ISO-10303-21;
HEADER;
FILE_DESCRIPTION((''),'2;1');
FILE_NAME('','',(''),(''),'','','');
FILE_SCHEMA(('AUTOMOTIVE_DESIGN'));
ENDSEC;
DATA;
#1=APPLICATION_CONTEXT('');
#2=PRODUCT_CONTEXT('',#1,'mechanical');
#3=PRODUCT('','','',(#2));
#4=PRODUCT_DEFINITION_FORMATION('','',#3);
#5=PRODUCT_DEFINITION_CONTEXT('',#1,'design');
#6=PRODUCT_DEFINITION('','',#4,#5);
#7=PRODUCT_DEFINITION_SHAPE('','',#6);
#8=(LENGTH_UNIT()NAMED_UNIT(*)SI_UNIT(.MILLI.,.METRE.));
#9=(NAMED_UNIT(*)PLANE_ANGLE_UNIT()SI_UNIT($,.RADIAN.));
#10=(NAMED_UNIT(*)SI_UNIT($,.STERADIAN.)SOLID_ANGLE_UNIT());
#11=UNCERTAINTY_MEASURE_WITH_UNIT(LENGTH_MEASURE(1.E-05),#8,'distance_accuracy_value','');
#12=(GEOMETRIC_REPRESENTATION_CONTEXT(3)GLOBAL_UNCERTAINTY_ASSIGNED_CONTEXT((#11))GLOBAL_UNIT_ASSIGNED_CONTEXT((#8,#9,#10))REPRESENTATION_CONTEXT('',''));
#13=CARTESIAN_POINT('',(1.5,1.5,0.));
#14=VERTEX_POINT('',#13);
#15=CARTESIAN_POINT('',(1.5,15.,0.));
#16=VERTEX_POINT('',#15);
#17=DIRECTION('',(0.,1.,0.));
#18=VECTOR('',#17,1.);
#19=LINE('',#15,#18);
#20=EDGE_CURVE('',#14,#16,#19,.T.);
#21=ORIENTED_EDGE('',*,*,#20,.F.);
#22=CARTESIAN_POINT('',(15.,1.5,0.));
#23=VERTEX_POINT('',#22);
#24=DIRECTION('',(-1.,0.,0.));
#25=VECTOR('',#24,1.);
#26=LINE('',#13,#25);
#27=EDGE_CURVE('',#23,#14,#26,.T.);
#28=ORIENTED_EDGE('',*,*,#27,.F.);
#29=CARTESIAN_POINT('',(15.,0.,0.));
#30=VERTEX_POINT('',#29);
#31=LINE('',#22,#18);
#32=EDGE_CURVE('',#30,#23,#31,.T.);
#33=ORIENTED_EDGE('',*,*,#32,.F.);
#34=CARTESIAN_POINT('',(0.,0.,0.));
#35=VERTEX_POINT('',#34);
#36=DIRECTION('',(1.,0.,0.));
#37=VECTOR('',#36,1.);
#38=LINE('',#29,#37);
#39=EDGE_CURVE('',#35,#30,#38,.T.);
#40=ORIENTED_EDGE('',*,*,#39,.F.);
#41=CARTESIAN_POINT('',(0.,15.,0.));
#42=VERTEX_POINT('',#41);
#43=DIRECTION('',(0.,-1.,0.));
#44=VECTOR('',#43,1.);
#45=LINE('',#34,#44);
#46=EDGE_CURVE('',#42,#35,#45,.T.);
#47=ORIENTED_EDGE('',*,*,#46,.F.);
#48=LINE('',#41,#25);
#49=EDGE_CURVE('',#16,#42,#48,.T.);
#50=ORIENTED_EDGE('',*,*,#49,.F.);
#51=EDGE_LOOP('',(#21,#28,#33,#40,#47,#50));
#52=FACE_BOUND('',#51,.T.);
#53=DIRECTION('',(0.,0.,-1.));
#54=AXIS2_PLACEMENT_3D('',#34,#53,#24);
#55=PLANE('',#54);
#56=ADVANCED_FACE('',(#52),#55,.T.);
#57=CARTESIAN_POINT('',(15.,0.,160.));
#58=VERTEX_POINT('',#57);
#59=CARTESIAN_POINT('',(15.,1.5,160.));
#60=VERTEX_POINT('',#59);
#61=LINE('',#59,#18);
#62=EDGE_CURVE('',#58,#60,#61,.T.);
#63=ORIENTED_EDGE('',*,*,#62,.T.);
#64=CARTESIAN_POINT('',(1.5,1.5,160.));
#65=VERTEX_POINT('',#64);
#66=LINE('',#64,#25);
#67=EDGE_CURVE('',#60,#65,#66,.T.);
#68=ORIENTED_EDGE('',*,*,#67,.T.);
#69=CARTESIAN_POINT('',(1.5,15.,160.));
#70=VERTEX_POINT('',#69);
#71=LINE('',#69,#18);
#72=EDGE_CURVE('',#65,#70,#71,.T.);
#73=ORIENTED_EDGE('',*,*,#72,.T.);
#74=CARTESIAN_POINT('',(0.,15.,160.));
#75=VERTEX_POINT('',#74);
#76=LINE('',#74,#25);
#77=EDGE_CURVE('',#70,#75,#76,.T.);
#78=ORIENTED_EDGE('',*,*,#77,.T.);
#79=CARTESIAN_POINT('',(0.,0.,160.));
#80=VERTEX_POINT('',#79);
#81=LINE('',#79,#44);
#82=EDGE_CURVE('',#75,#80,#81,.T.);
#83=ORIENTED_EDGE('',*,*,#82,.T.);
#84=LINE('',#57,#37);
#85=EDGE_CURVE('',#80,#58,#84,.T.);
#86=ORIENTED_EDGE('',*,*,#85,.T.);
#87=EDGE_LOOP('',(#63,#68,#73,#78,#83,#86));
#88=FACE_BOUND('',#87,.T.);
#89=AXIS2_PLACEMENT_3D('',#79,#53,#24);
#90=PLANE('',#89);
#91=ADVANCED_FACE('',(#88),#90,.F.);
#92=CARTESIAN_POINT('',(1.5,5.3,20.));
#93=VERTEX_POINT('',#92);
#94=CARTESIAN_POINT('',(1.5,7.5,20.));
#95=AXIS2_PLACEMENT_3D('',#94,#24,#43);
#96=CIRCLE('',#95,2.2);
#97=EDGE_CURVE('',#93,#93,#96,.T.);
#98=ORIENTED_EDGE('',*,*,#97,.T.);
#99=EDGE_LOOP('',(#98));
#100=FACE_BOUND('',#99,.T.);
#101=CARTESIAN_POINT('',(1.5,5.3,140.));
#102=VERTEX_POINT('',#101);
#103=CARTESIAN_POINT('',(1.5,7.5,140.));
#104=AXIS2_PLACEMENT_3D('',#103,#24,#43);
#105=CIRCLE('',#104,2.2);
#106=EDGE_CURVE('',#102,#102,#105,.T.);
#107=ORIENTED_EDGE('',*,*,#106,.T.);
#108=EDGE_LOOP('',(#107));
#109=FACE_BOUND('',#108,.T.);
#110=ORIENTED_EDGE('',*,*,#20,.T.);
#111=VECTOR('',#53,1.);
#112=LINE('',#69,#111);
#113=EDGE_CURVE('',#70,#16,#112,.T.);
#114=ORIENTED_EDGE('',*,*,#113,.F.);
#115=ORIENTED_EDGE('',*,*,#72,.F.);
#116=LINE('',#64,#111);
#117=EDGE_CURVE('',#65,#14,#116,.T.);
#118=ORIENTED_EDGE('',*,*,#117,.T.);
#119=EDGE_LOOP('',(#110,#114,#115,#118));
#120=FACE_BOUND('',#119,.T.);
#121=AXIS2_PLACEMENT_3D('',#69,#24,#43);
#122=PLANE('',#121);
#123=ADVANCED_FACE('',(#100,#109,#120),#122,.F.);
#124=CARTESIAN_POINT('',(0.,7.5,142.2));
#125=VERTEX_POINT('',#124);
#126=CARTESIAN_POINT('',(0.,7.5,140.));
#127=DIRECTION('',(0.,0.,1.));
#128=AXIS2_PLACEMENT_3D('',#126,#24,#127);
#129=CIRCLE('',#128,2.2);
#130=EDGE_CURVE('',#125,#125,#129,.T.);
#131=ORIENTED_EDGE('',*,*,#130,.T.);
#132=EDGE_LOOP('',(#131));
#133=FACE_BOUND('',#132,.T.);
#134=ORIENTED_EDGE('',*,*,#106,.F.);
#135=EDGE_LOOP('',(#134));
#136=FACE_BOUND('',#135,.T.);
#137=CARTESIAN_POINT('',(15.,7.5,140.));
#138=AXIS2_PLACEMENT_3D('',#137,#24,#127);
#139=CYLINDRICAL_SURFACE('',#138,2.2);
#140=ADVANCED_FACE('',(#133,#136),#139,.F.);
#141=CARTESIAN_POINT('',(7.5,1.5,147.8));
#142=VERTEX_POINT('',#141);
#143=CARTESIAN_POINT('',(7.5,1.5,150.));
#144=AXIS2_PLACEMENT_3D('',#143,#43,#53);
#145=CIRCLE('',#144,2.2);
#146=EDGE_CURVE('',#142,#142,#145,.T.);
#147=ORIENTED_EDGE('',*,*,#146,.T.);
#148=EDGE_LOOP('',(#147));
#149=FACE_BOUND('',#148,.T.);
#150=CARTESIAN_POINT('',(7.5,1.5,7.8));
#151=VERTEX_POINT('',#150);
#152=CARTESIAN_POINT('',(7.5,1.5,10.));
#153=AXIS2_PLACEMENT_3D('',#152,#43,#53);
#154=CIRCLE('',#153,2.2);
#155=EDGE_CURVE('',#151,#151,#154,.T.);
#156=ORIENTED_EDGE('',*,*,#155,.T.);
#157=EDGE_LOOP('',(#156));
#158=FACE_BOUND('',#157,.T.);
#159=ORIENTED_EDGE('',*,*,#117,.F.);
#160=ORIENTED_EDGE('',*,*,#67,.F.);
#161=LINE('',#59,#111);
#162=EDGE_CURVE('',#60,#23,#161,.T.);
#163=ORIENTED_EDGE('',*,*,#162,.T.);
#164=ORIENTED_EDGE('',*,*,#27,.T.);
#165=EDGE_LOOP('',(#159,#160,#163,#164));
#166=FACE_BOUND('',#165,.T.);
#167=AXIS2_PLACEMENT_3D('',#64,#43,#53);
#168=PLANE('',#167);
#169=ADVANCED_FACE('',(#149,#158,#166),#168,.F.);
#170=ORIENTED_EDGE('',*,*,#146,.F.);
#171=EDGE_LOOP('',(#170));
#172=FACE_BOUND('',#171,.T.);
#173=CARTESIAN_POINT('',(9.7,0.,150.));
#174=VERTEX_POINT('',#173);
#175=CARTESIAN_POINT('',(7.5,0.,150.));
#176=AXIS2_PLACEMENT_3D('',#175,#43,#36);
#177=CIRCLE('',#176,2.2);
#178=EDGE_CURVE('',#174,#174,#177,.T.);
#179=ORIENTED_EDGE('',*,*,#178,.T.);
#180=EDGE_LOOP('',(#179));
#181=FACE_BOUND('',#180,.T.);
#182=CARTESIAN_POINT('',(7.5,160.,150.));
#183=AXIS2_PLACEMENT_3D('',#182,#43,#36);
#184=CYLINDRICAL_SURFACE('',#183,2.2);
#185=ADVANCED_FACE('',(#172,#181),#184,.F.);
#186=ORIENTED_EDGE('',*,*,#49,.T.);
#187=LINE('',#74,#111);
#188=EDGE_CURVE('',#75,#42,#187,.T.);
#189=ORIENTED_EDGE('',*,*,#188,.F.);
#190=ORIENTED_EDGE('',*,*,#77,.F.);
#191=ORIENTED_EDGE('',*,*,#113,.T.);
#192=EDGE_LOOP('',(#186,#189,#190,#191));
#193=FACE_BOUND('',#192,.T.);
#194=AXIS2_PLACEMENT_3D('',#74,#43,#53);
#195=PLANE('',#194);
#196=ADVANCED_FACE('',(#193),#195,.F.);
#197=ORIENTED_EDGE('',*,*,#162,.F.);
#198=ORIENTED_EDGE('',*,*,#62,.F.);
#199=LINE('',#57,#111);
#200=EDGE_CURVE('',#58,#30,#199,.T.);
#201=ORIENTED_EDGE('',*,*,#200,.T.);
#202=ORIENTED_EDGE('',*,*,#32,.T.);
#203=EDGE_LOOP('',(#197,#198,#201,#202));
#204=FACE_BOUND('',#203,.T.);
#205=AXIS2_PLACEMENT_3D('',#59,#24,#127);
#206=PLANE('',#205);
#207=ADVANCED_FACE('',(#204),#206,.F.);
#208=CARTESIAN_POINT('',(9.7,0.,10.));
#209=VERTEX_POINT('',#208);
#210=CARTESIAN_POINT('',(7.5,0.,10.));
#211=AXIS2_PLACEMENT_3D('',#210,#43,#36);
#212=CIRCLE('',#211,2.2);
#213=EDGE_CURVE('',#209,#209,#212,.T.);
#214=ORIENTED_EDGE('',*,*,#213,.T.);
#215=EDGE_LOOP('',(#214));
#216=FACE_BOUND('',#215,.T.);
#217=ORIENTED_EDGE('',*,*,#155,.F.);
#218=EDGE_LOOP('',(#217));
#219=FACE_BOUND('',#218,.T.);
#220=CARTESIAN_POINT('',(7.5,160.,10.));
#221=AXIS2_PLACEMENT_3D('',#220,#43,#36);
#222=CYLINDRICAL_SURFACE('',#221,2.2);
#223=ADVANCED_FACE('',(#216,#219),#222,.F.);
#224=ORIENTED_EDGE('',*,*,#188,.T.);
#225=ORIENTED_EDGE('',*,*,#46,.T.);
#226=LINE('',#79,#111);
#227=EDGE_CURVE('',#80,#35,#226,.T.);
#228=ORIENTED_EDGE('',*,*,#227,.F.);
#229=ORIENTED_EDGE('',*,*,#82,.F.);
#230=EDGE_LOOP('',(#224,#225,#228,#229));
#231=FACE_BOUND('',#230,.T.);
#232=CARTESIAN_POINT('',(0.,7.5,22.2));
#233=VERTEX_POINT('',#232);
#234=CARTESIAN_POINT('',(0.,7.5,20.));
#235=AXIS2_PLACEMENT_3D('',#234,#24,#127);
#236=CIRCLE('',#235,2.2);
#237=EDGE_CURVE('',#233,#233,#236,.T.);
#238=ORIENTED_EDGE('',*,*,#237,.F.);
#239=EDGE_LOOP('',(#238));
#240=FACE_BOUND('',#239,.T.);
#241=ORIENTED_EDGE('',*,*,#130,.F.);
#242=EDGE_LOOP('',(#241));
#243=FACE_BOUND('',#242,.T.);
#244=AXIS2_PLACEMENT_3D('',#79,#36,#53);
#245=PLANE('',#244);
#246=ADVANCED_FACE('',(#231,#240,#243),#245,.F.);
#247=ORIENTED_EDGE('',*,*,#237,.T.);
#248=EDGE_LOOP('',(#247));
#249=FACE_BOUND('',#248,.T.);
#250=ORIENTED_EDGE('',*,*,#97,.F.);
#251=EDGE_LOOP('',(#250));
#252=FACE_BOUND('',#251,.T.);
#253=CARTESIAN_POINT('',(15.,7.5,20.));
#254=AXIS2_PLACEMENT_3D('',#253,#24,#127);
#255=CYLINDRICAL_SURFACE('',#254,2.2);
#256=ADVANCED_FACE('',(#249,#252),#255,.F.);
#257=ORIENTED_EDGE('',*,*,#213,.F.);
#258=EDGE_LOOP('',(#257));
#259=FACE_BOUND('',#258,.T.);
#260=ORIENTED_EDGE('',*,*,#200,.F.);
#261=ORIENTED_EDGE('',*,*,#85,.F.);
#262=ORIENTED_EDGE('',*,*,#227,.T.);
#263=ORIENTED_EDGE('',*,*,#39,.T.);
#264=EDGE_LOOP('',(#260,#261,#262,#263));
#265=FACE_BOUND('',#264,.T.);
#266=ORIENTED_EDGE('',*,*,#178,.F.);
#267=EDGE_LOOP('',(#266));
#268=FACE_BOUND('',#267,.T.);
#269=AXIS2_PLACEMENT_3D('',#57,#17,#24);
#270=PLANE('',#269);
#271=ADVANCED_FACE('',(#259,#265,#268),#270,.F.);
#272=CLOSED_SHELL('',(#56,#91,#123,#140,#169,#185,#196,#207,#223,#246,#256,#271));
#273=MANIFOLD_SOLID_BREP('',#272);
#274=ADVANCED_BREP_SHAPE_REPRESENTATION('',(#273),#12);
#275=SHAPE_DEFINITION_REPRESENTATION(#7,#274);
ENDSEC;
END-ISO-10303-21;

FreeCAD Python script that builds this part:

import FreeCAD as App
import Part
import Sketcher
from FreeCAD import Vector
Q = App.Units.Quantity


def add_polygon(sketch, points):
    """Adds a closed chain of lines whose ends are joined by coincident constraints."""
    first, n = sketch.GeometryCount, len(points)
    for a, b in zip(points, points[1:] + points[:1]):
        sketch.addGeometry(Part.LineSegment(App.Vector(*a, 0), App.Vector(*b, 0)), False)
    for i in range(n):
        sketch.addConstraint(Sketcher.Constraint("Coincident", first + i, 2, first + (i + 1) % n, 1))

doc = App.newDocument("Part")
body = doc.addObject("PartDesign::Body", "Body")

# Sketch on XY plane
sketch1 = body.newObject("Sketcher::SketchObject", "Sketch")
sketch1.AttachmentSupport = (doc.getObject("XY_Plane"), [""])
sketch1.MapMode = "FlatFace"
add_polygon(sketch1, [(0, 15), (0, 0), (15, 0), (15, 1.5), (1.5, 1.5), (1.5, 15)])  # lines 0-5
sketch1.addConstraint([
    Sketcher.Constraint("Vertical", 0),
    Sketcher.Constraint("Horizontal", 1),
    Sketcher.Constraint("Vertical", 2),
    Sketcher.Constraint("Horizontal", 3),
    Sketcher.Constraint("Vertical", 4),
    Sketcher.Constraint("Horizontal", 5),
    Sketcher.Constraint("Coincident", 0, 2, -1, 1),
    Sketcher.Constraint("Equal", 1, 0),
    Sketcher.Constraint("Equal", 5, 2),
    Sketcher.Constraint("DistanceX", 1, 1, 1, 2, Q("15 mm")),
    Sketcher.Constraint("DistanceX", 3, 2, 3, 1, Q("13.5 mm")),
])
pad1 = body.newObject("PartDesign::Pad", "Pad")
pad1.Profile = sketch1
pad1.Length = 160

# Sketch on YZ plane
sketch2 = body.newObject("Sketcher::SketchObject", "Sketch001")
sketch2.AttachmentSupport = (doc.getObject("YZ_Plane"), [""])
sketch2.MapMode = "FlatFace"
sketch2.addGeometry([
    Part.Circle(Vector(7.5, 20, 0), Vector(0, 0, 1), 2.2),
    Part.Circle(Vector(7.5, 140, 0), Vector(0, 0, 1), 2.2),
], False)
sketch2.addConstraint([
    Sketcher.Constraint("Equal", 0, 1),
    Sketcher.Constraint("Vertical", 0, 3, 1, 3),
    Sketcher.Constraint("Diameter", 0, Q("4.4 mm")),
    Sketcher.Constraint("DistanceY", -1, 1, 0, 3, Q("20 mm")),
    Sketcher.Constraint("DistanceY", -1, 1, 1, 3, Q("140 mm")),
    Sketcher.Constraint("DistanceX", -1, 1, 0, 3, Q("7.5 mm")),
])
pocket1 = body.newObject("PartDesign::Pocket", "Pocket")
pocket1.Profile = sketch2
pocket1.Type = "ThroughAll"
pocket1.Reversed = True

# Sketch on XZ plane
sketch3 = body.newObject("Sketcher::SketchObject", "Sketch002")
sketch3.AttachmentSupport = (doc.getObject("XZ_Plane"), [""])
sketch3.MapMode = "FlatFace"
sketch3.addGeometry([
    Part.Circle(Vector(7.5, 10, 0), Vector(0, 0, 1), 2.2),
    Part.Circle(Vector(7.5, 150, 0), Vector(0, 0, 1), 2.2),
], False)
sketch3.addConstraint([
    Sketcher.Constraint("Equal", 0, 1),
    Sketcher.Constraint("Vertical", 0, 3, 1, 3),
    Sketcher.Constraint("Diameter", 0, Q("4.4 mm")),
    Sketcher.Constraint("DistanceY", -1, 1, 0, 3, Q("10 mm")),
    Sketcher.Constraint("DistanceY", -1, 1, 1, 3, Q("150 mm")),
    Sketcher.Constraint("DistanceX", -1, 1, 0, 3, Q("7.5 mm")),
])
pocket2 = body.newObject("PartDesign::Pocket", "Pocket001")
pocket2.Profile = sketch3
pocket2.Length = 160

doc.recompute()
